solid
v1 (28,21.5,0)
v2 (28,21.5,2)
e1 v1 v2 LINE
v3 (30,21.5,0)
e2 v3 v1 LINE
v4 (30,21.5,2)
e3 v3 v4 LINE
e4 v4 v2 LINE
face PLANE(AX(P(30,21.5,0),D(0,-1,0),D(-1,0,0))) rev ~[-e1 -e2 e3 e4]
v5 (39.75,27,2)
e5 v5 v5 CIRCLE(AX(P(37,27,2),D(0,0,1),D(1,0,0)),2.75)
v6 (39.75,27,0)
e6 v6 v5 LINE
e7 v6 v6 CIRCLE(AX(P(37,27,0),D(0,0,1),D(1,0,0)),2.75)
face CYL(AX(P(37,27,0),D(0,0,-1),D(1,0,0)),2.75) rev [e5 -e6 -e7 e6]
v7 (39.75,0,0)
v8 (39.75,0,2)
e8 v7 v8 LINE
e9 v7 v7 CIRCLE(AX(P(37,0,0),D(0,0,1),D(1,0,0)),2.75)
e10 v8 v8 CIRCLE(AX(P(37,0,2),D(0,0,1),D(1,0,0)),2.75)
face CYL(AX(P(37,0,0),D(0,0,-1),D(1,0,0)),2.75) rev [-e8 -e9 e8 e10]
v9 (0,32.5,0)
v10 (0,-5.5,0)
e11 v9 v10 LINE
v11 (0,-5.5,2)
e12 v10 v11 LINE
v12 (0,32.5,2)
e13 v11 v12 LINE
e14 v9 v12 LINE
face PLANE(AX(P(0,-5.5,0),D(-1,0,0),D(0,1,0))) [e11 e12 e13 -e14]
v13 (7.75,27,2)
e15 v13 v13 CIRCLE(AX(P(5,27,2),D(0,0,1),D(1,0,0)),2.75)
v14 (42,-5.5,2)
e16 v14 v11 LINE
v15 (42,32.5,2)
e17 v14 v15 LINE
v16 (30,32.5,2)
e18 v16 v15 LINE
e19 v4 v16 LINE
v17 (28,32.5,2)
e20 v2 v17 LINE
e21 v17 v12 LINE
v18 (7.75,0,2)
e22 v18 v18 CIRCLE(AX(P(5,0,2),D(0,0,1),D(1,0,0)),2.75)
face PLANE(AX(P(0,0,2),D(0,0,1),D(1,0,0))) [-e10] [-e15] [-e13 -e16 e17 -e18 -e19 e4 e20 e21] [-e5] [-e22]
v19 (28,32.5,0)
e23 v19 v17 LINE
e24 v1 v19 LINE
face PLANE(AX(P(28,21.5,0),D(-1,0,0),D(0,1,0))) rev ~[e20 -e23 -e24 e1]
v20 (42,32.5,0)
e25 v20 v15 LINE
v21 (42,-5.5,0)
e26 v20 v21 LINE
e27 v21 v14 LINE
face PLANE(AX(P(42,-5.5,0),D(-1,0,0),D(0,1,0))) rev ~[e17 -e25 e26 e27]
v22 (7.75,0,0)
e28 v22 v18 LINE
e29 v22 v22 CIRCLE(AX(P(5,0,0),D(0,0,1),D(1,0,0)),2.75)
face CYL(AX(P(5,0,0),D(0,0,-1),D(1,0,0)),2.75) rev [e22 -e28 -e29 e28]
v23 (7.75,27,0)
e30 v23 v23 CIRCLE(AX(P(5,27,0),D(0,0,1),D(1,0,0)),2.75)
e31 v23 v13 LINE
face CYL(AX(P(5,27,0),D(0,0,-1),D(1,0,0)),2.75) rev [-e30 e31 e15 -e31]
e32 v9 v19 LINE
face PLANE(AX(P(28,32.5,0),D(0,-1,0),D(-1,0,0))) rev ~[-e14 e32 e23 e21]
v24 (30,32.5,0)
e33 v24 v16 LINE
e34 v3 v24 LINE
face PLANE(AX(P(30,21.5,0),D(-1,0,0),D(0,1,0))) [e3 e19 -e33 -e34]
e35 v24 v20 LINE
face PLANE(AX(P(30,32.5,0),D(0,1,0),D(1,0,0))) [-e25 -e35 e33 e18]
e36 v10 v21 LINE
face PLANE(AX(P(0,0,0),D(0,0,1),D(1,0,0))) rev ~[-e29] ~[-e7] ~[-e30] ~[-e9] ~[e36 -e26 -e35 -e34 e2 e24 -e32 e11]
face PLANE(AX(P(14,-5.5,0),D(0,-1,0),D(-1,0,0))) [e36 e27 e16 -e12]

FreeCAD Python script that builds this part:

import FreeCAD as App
import Part
import Sketcher

doc = App.newDocument("Part")
params = doc.addObject("Spreadsheet::Sheet", "Params")
for row, (alias, value) in enumerate([
    ("sketch1_diameter", "5.5 mm"),
    ("sketch1_width", "42 mm"),
    ("sketch1_width2", "12 mm"),
    ("sketch1_width3", "2 mm"),
    ("sketch1_height", "38 mm"),
    ("pad1_length", "2 mm"),
], start=1):
    params.set(f"A{row}", alias)
    params.set(f"B{row}", "=" + value)
    params.setAlias(f"B{row}", alias)

body = doc.addObject("PartDesign::Body", "Body")

sketch1 = body.newObject("Sketcher::SketchObject", "Sketch")
sketch1.AttachmentSupport = (doc.getObject("XY_Plane"), [""])
sketch1.MapMode = "FlatFace"
sketch1.addGeometry([
    Part.LineSegment(App.Vector(0, -5.5, 0), App.Vector(42, -5.5, 0)),
    Part.LineSegment(App.Vector(42, -5.5, 0), App.Vector(42, 32.5, 0)),
    Part.LineSegment(App.Vector(42, 32.5, 0), App.Vector(30, 32.5, 0)),
    Part.LineSegment(App.Vector(30, 32.5, 0), App.Vector(30, 21.5, 0)),
    Part.LineSegment(App.Vector(30, 21.5, 0), App.Vector(28, 21.5, 0)),
    Part.LineSegment(App.Vector(28, 21.5, 0), App.Vector(28, 32.5, 0)),
    Part.LineSegment(App.Vector(28, 32.5, 0), App.Vector(0, 32.5, 0)),
    Part.LineSegment(App.Vector(0, 32.5, 0), App.Vector(0, -5.5, 0)),
    Part.Circle(App.Vector(5, 0, 0), App.Vector(0, 0, 1), 2.8),
    Part.Circle(App.Vector(37, 0, 0), App.Vector(0, 0, 1), 2.8),
    Part.Circle(App.Vector(5, 27, 0), App.Vector(0, 0, 1), 2.8),
    Part.Circle(App.Vector(37, 27, 0), App.Vector(0, 0, 1), 2.8),
], False)
sketch1.addConstraint([
    Sketcher.Constraint("Coincident", 0, 2, 1, 1),
    Sketcher.Constraint("Coincident", 1, 2, 2, 1),
    Sketcher.Constraint("Coincident", 2, 2, 3, 1),
    Sketcher.Constraint("Coincident", 3, 2, 4, 1),
    Sketcher.Constraint("Coincident", 4, 2, 5, 1),
    Sketcher.Constraint("Coincident", 5, 2, 6, 1),
    Sketcher.Constraint("Coincident", 6, 2, 7, 1),
    Sketcher.Constraint("Coincident", 7, 2, 0, 1),
    Sketcher.Constraint("Horizontal", 0),
    Sketcher.Constraint("Vertical", 1),
    Sketcher.Constraint("Horizontal", 2),
    Sketcher.Constraint("Vertical", 3),
    Sketcher.Constraint("Horizontal", 4),
    Sketcher.Constraint("Vertical", 5),
    Sketcher.Constraint("Horizontal", 6),
    Sketcher.Constraint("Vertical", 7),
    Sketcher.Constraint("Equal", 8, 9),
    Sketcher.Constraint("Equal", 9, 10),
    Sketcher.Constraint("Equal", 10, 11),
    Sketcher.Constraint("PointOnObject", 8, 3, -1),
    Sketcher.Constraint("PointOnObject", 9, 3, -1),
    Sketcher.Constraint("PointOnObject", 6, 2, -2),
    Sketcher.Constraint("Horizontal", 10, 3, 11, 3),
    Sketcher.Constraint("Horizontal", 2, 2, 5, 2),
    Sketcher.Constraint("Vertical", 8, 3, 10, 3),
    Sketcher.Constraint("Vertical", 9, 3, 11, 3),
    Sketcher.Constraint("Diameter", 8, 5.5),
    Sketcher.Constraint("DistanceX", 0, 1, 0, 2, 42.0),
    Sketcher.Constraint("DistanceX", 2, 2, 2, 1, 12.0),
    Sketcher.Constraint("DistanceX", 4, 2, 4, 1, 2.0),
    Sketcher.Constraint("DistanceY", 1, 1, 1, 2, 38.0),
    Sketcher.Constraint("DistanceY", 3, 2, 3, 1, 11.0),
    Sketcher.Constraint("DistanceX", -1, 1, 8, 3, 5.0),
    Sketcher.Constraint("DistanceX", -1, 1, 9, 3, 37.0),
    Sketcher.Constraint("DistanceY", -1, 1, 10, 3, 27.0),
    Sketcher.Constraint("DistanceY", 0, 2, -1, 1, 5.5),
])
sketch1.setExpression("Constraints[26]", "Params.sketch1_diameter")
sketch1.setExpression("Constraints[27]", "Params.sketch1_width")
sketch1.setExpression("Constraints[28]", "Params.sketch1_width2")
sketch1.setExpression("Constraints[29]", "Params.sketch1_width3")
sketch1.setExpression("Constraints[30]", "Params.sketch1_height")
pad1 = body.newObject("PartDesign::Pad", "Pad")
pad1.Profile = sketch1
pad1.setExpression("Length", "Params.pad1_length")

doc.recompute()
